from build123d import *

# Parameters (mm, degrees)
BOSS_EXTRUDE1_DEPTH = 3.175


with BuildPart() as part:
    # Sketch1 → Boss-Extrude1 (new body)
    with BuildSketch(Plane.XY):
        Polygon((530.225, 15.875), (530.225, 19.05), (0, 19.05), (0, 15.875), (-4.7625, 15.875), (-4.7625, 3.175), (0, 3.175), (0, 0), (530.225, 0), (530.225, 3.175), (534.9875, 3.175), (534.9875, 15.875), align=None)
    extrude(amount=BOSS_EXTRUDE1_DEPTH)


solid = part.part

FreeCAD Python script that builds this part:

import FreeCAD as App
import Part
import Sketcher
Q = App.Units.Quantity

doc = App.newDocument("Part")
params = doc.addObject("Spreadsheet::Sheet", "Params")
for row, (alias, value) in enumerate([
    ("sketch1_height", "0.5 in"),
    ("sketch1_width", "20.875 in"),
    ("sketch1_width2", "0.1875 in"),
    ("sketch1_height2", "0.125 in"),
    ("pad1_length", "0.125 in"),
], start=1):
    params.set(f"A{row}", alias)
    params.set(f"B{row}", "=" + value)
    params.setAlias(f"B{row}", alias)

body = doc.addObject("PartDesign::Body", "Body")

# Sketch on XY plane
sketch1 = body.newObject("Sketcher::SketchObject", "Sketch")
sketch1.AttachmentSupport = (doc.getObject("XY_Plane"), [""])
sketch1.MapMode = "FlatFace"
sketch1.addGeometry([
    Part.LineSegment(App.Vector(530.2, 15.9, 0), App.Vector(530.2, 19.1, 0)),  # 0
    Part.LineSegment(App.Vector(530.2, 19.1, 0), App.Vector(0, 19.1, 0)),  # 1
    Part.LineSegment(App.Vector(0, 19.1, 0), App.Vector(0, 15.9, 0)),  # 2
    Part.LineSegment(App.Vector(0, 15.9, 0), App.Vector(-4.8, 15.9, 0)),  # 3
    Part.LineSegment(App.Vector(-4.8, 15.9, 0), App.Vector(-4.8, 3.2, 0)),  # 4
    Part.LineSegment(App.Vector(-4.8, 3.2, 0), App.Vector(0, 3.2, 0)),  # 5
    Part.LineSegment(App.Vector(0, 3.2, 0), App.Vector(0, 0, 0)),  # 6
    Part.LineSegment(App.Vector(0, 0, 0), App.Vector(530.2, 0, 0)),  # 7
    Part.LineSegment(App.Vector(530.2, 0, 0), App.Vector(530.2, 3.2, 0)),  # 8
    Part.LineSegment(App.Vector(530.2, 3.2, 0), App.Vector(535, 3.2, 0)),  # 9
    Part.LineSegment(App.Vector(535, 3.2, 0), App.Vector(535, 15.9, 0)),  # 10
    Part.LineSegment(App.Vector(535, 15.9, 0), App.Vector(530.2, 15.9, 0)),  # 11
], False)
sketch1.addConstraint([
    Sketcher.Constraint("Coincident", 0, 2, 1, 1),
    Sketcher.Constraint("Coincident", 1, 2, 2, 1),
    Sketcher.Constraint("Coincident", 2, 2, 3, 1),
    Sketcher.Constraint("Coincident", 3, 2, 4, 1),
    Sketcher.Constraint("Coincident", 4, 2, 5, 1),
    Sketcher.Constraint("Coincident", 5, 2, 6, 1),
    Sketcher.Constraint("Coincident", 6, 2, 7, 1),
    Sketcher.Constraint("Coincident", 7, 2, 8, 1),
    Sketcher.Constraint("Coincident", 8, 2, 9, 1),
    Sketcher.Constraint("Coincident", 9, 2, 10, 1),
    Sketcher.Constraint("Coincident", 10, 2, 11, 1),
    Sketcher.Constraint("Coincident", 11, 2, 0, 1),
    Sketcher.Constraint("Vertical", 0),
    Sketcher.Constraint("Horizontal", 1),
    Sketcher.Constraint("Vertical", 2),
    Sketcher.Constraint("Horizontal", 3),
    Sketcher.Constraint("Vertical", 4),
    Sketcher.Constraint("Horizontal", 5),
    Sketcher.Constraint("Vertical", 6),
    Sketcher.Constraint("Horizontal", 7),
    Sketcher.Constraint("Vertical", 8),
    Sketcher.Constraint("Horizontal", 9),
    Sketcher.Constraint("Vertical", 10),
    Sketcher.Constraint("Horizontal", 11),
    Sketcher.Constraint("Coincident", 6, 2, -1, 1),
    Sketcher.Constraint("PointOnObject", 1, 2, -2),
    Sketcher.Constraint("Horizontal", 5, 2, 8, 2),
    Sketcher.Constraint("Horizontal", 3, 2, 10, 2),
    Sketcher.Constraint("Vertical", 0, 2, 7, 2),
    Sketcher.Constraint("Equal", 5, 9),
    Sketcher.Constraint("Equal", 2, 6),
    Sketcher.Constraint("DistanceY", 4, 2, 4, 1, Q("0.5 in")),
    Sketcher.Constraint("DistanceX", 1, 2, 1, 1, Q("20.875 in")),
    Sketcher.Constraint("DistanceX", 3, 2, 3, 1, Q("0.1875 in")),
    Sketcher.Constraint("DistanceY", 0, 1, 0, 2, Q("0.125 in")),
])
sketch1.setExpression("Constraints[31]", "Params.sketch1_height")
sketch1.setExpression("Constraints[32]", "Params.sketch1_width")
sketch1.setExpression("Constraints[33]", "Params.sketch1_width2")
sketch1.setExpression("Constraints[34]", "Params.sketch1_height2")
pad1 = body.newObject("PartDesign::Pad", "Pad")
pad1.Profile = sketch1
pad1.setExpression("Length", "Params.pad1_length")

doc.recompute()
